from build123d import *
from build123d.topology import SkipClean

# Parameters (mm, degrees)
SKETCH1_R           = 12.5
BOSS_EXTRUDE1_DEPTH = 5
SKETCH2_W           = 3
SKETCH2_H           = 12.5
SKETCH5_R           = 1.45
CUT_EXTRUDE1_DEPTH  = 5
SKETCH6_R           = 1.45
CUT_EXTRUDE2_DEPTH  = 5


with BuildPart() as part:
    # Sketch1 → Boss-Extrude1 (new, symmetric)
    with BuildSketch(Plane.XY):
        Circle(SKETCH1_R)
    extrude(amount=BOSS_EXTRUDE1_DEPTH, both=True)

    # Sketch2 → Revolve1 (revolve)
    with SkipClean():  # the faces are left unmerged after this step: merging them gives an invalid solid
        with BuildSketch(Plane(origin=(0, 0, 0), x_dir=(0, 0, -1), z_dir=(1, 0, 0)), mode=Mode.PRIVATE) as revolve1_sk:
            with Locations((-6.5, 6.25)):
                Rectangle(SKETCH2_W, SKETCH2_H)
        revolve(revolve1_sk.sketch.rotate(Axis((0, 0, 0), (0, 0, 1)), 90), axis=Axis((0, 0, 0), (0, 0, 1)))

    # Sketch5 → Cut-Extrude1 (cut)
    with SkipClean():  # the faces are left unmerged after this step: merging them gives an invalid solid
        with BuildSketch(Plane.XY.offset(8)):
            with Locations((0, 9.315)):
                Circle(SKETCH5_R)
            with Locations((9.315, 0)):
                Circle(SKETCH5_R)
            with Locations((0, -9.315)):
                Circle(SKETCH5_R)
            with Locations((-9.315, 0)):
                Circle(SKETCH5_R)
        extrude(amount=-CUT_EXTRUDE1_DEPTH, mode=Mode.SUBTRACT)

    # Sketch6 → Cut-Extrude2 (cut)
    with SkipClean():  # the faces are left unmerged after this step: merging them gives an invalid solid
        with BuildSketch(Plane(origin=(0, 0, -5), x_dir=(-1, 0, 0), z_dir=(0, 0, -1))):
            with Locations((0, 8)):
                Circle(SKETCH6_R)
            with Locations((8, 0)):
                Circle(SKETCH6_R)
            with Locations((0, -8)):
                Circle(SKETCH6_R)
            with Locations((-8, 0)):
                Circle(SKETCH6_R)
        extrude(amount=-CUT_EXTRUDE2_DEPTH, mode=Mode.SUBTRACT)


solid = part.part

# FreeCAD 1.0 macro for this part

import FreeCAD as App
import Part
import Sketcher
from FreeCAD import Vector
Q = App.Units.Quantity

doc = App.newDocument("Part")
body = doc.addObject("PartDesign::Body", "Body")

# Sketch on XY plane
sketch1 = doc.addObject("Sketcher::SketchObject", "Sketch")
body.addObject(sketch1)
sketch1.AttachmentSupport = (doc.XY_Plane, [""])
sketch1.MapMode = "FlatFace"
sketch1.addGeometry(Part.Circle(Vector(0, 0, 0), Vector(0, 0, 1), 12.5), False)
sketch1.addConstraint([
    Sketcher.Constraint("Coincident", 0, 3, -1, 1),
    Sketcher.Constraint("Diameter", 0, Q("25 mm")),
])
pad1 = doc.addObject("PartDesign::Pad", "Pad")
body.addObject(pad1)
pad1.Profile = sketch1
pad1.Length = 10
pad1.Midplane = True

# Sketch on YZ plane
sketch2 = doc.addObject("Sketcher::SketchObject", "Sketch001")
body.addObject(sketch2)
sketch2.AttachmentSupport = (doc.YZ_Plane, [""])
sketch2.MapMode = "FlatFace"
sketch2.addGeometry([
    Part.LineSegment(Vector(12.5, 8, 0), Vector(0, 8, 0)),
    Part.LineSegment(Vector(0, 8, 0), Vector(0, 5, 0)),
    Part.LineSegment(Vector(0, 5, 0), Vector(12.5, 5, 0)),
    Part.LineSegment(Vector(12.5, 5, 0), Vector(12.5, 8, 0)),
], False)
sketch2.addConstraint([
    Sketcher.Constraint("Coincident", 0, 2, 1, 1),
    Sketcher.Constraint("Coincident", 1, 2, 2, 1),
    Sketcher.Constraint("Coincident", 2, 2, 3, 1),
    Sketcher.Constraint("Coincident", 3, 2, 0, 1),
    Sketcher.Constraint("Horizontal", 0),
    Sketcher.Constraint("Vertical", 1),
    Sketcher.Constraint("Horizontal", 2),
    Sketcher.Constraint("Vertical", 3),
    Sketcher.Constraint("PointOnObject", 0, 2, -2),
    Sketcher.Constraint("DistanceY", 1, 2, 1, 1, Q("3 mm")),
    Sketcher.Constraint("DistanceX", 0, 2, 0, 1, Q("12.5 mm")),
    Sketcher.Constraint("DistanceY", -1, 1, 0, 2, Q("8 mm")),
])
revolution = doc.addObject("PartDesign::Revolution", "Revolution")
body.addObject(revolution)
revolution.Profile = sketch2
revolution.ReferenceAxis = (sketch2, ["V_Axis"])
revolution.Angle = 360

# Sketch on XY plane
sketch3 = doc.addObject("Sketcher::SketchObject", "Sketch002")
body.addObject(sketch3)
sketch3.AttachmentSupport = (doc.XY_Plane, [""])
sketch3.MapMode = "FlatFace"
sketch3.AttachmentOffset = App.Placement(Vector(0, 0, 8), App.Rotation())
sketch3.addGeometry([
    Part.Circle(Vector(0, 9.315, 0), Vector(0, 0, 1), 1.45),
    Part.Circle(Vector(9.315, 0, 0), Vector(0, 0, 1), 1.45),
    Part.Circle(Vector(0, -9.315, 0), Vector(0, 0, 1), 1.45),
    Part.Circle(Vector(-9.315, 0, 0), Vector(0, 0, 1), 1.45),
], False)
sketch3.addConstraint([
    Sketcher.Constraint("Equal", 0, 1),
    Sketcher.Constraint("Equal", 1, 2),
    Sketcher.Constraint("Equal", 2, 3),
    Sketcher.Constraint("Symmetric", 0, 3, 2, 3, -1, 1),
    Sketcher.Constraint("Symmetric", 1, 3, 3, 3, -1, 1),
    Sketcher.Constraint("PointOnObject", 0, 3, -2),
    Sketcher.Constraint("PointOnObject", 1, 3, -1),
    Sketcher.Constraint("Diameter", 0, Q("2.9 mm")),
    Sketcher.Constraint("DistanceY", 2, 3, 0, 3, Q("18.63 mm")),
    Sketcher.Constraint("DistanceX", 3, 3, 1, 3, Q("18.63 mm")),
])
pocket1 = doc.addObject("PartDesign::Pocket", "Pocket")
body.addObject(pocket1)
pocket1.Profile = sketch3
pocket1.Length = 5

# Sketch on XY plane
sketch4 = doc.addObject("Sketcher::SketchObject", "Sketch003")
body.addObject(sketch4)
sketch4.AttachmentSupport = (doc.XY_Plane, [""])
sketch4.MapMode = "FlatFace"
sketch4.AttachmentOffset = App.Placement(Vector(0, 0, -5), App.Rotation())
sketch4.addGeometry([
    Part.Circle(Vector(0, 8, 0), Vector(0, 0, 1), 1.45),
    Part.Circle(Vector(-8, 0, 0), Vector(0, 0, 1), 1.45),
    Part.Circle(Vector(0, -8, 0), Vector(0, 0, 1), 1.45),
    Part.Circle(Vector(8, 0, 0), Vector(0, 0, 1), 1.45),
], False)
sketch4.addConstraint([
    Sketcher.Constraint("Equal", 0, 1),
    Sketcher.Constraint("Equal", 1, 2),
    Sketcher.Constraint("Equal", 2, 3),
    Sketcher.Constraint("Symmetric", 0, 3, 2, 3, -1, 1),
    Sketcher.Constraint("Symmetric", 1, 3, 3, 3, -1, 1),
    Sketcher.Constraint("PointOnObject", 0, 3, -2),
    Sketcher.Constraint("PointOnObject", 1, 3, -1),
    Sketcher.Constraint("Diameter", 0, Q("2.9 mm")),
    Sketcher.Constraint("DistanceY", -1, 1, 0, 3, Q("8 mm")),
    Sketcher.Constraint("DistanceX", 1, 3, -1, 1, Q("8 mm")),
])
pocket2 = doc.addObject("PartDesign::Pocket", "Pocket001")
body.addObject(pocket2)
pocket2.Profile = sketch4
pocket2.Length = 5
pocket2.Reversed = True

doc.recompute()
